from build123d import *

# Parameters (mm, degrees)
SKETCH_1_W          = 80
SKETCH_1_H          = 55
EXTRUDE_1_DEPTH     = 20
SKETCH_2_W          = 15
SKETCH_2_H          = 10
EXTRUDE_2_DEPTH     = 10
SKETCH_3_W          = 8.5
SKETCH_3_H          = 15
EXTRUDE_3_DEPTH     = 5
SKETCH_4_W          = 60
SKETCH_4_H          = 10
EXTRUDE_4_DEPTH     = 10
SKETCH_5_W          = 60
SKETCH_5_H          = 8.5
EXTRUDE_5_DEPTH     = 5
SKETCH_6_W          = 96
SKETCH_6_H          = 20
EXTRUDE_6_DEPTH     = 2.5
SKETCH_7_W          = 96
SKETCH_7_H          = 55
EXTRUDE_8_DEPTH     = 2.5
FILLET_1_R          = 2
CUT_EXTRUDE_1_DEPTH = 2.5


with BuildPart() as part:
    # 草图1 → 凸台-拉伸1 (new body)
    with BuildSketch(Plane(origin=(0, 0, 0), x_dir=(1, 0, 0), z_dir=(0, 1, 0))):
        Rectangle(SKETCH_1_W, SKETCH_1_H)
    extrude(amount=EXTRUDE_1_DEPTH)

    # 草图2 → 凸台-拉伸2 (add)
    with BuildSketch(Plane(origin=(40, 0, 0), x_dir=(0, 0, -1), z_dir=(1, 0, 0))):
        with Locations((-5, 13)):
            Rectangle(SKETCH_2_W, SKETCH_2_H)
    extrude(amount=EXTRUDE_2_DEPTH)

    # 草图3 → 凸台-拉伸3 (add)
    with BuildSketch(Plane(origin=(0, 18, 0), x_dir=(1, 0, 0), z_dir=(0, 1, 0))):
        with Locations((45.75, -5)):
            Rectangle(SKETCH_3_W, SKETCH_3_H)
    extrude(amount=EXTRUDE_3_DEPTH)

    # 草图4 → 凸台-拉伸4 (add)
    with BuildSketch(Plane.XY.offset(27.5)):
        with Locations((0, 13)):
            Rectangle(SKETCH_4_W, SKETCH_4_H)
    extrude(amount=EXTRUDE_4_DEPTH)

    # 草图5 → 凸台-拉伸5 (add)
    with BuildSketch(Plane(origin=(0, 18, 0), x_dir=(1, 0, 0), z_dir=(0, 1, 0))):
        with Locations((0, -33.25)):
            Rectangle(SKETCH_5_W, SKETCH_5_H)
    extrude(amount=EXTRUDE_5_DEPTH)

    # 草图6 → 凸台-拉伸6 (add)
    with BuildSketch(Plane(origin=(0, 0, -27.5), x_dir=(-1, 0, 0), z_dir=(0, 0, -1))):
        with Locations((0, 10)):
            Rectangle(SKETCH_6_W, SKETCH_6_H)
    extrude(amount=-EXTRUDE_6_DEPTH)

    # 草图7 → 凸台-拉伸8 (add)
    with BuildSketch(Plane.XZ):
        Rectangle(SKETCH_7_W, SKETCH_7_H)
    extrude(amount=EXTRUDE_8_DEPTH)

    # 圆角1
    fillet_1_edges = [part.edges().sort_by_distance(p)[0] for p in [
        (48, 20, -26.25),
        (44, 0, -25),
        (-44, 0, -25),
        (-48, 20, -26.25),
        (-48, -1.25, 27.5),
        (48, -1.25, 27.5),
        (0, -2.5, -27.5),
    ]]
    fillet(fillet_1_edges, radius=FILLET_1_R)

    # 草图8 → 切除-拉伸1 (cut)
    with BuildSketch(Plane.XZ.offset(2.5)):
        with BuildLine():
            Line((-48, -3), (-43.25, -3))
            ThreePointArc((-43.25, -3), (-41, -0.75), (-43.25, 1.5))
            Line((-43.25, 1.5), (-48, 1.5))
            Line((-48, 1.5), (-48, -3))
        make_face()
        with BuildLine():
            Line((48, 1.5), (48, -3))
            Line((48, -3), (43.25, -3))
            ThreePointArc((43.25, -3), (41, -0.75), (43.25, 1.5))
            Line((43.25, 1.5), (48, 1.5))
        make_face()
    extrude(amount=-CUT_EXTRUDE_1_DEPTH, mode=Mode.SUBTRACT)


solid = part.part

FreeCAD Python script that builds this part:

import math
import FreeCAD as App
import Part
import Sketcher

V = App.Vector
Q = App.Units.Quantity


def edges_at(feature, points):
    """Names of the edges that pass closest to the given points."""
    edges = feature.Shape.Edges
    near = lambda p: min(range(len(edges)), key=lambda i: edges[i].distToShape(Part.Vertex(*p))[0])
    return sorted({f"Edge{near(p) + 1}" for p in points})


def add_polygon(sketch, points):
    """Adds a closed chain of lines whose ends are joined by coincident constraints."""
    first, n = sketch.GeometryCount, len(points)
    for a, b in zip(points, points[1:] + points[:1]):
        sketch.addGeometry(Part.LineSegment(App.Vector(*a, 0), App.Vector(*b, 0)), False)
    for i in range(n):
        sketch.addConstraint(Sketcher.Constraint("Coincident", first + i, 2, first + (i + 1) % n, 1))

doc = App.newDocument("Part")
body = doc.addObject("PartDesign::Body", "Body")

# Sketch on XZ plane
sketch1 = body.newObject("Sketcher::SketchObject", "Sketch")
sketch1.AttachmentSupport = (doc.getObject("XZ_Plane"), [""])
sketch1.MapMode = "FlatFace"
add_polygon(sketch1, [(-40, -27.5), (-40, 27.5), (40, 27.5), (40, -27.5)])  # lines 0-3
sketch1.addConstraint(Sketcher.Constraint("Vertical", 0))
sketch1.addConstraint(Sketcher.Constraint("Horizontal", 1))
sketch1.addConstraint(Sketcher.Constraint("Vertical", 2))
sketch1.addConstraint(Sketcher.Constraint("Horizontal", 3))
sketch1.addConstraint(Sketcher.Constraint("Symmetric", 0, 2, 2, 2, -1, 1))
sketch1.addConstraint(Sketcher.Constraint("DistanceX", 1, 1, 1, 2, Q("80 mm")))
sketch1.addConstraint(Sketcher.Constraint("DistanceY", 0, 1, 0, 2, Q("55 mm")))
pad1 = body.newObject("PartDesign::Pad", "Pad")
pad1.Profile = sketch1
pad1.Length = 20
pad1.Reversed = True

# Sketch on YZ plane
sketch2 = body.newObject("Sketcher::SketchObject", "Sketch001")
sketch2.AttachmentSupport = (doc.getObject("YZ_Plane"), [""])
sketch2.MapMode = "FlatFace"
sketch2.AttachmentOffset = App.Placement(V(0, 0, 40), App.Rotation())
add_polygon(sketch2, [(18, 12.5), (8, 12.5), (8, -2.5), (18, -2.5)])  # lines 0-3
sketch2.addConstraint(Sketcher.Constraint("Horizontal", 0))
sketch2.addConstraint(Sketcher.Constraint("Vertical", 1))
sketch2.addConstraint(Sketcher.Constraint("Horizontal", 2))
sketch2.addConstraint(Sketcher.Constraint("Vertical", 3))
sketch2.addConstraint(Sketcher.Constraint("DistanceX", 0, 2, 0, 1, Q("10 mm")))
sketch2.addConstraint(Sketcher.Constraint("DistanceY", 1, 2, 1, 1, Q("15 mm")))
sketch2.addConstraint(Sketcher.Constraint("DistanceX", -1, 1, 0, 2, Q("8 mm")))
sketch2.addConstraint(Sketcher.Constraint("DistanceY", -1, 1, 0, 2, Q("12.5 mm")))
pad2 = body.newObject("PartDesign::Pad", "Pad001")
pad2.Profile = sketch2
pad2.Length = 10

# Sketch on XZ plane
sketch3 = body.newObject("Sketcher::SketchObject", "Sketch002")
sketch3.AttachmentSupport = (doc.getObject("XZ_Plane"), [""])
sketch3.MapMode = "FlatFace"
sketch3.AttachmentOffset = App.Placement(V(0, 0, -18), App.Rotation())
add_polygon(sketch3, [(41.5, -2.5), (41.5, 12.5), (50, 12.5), (50, -2.5)])  # lines 0-3
sketch3.addConstraint(Sketcher.Constraint("Vertical", 0))
sketch3.addConstraint(Sketcher.Constraint("Horizontal", 1))
sketch3.addConstraint(Sketcher.Constraint("Vertical", 2))
sketch3.addConstraint(Sketcher.Constraint("Horizontal", 3))
sketch3.addConstraint(Sketcher.Constraint("DistanceY", 0, 1, 0, 2, Q("15 mm")))
sketch3.addConstraint(Sketcher.Constraint("DistanceX", 1, 1, 1, 2, Q("8.5 mm")))
sketch3.addConstraint(Sketcher.Constraint("DistanceX", -1, 1, 1, 2, Q("50 mm")))
sketch3.addConstraint(Sketcher.Constraint("DistanceY", -1, 1, 0, 2, Q("12.5 mm")))
pad3 = body.newObject("PartDesign::Pad", "Pad002")
pad3.Profile = sketch3
pad3.Length = 5
pad3.Reversed = True

# Sketch on XY plane
sketch4 = body.newObject("Sketcher::SketchObject", "Sketch003")
sketch4.AttachmentSupport = (doc.getObject("XY_Plane"), [""])
sketch4.MapMode = "FlatFace"
sketch4.AttachmentOffset = App.Placement(V(0, 0, 27.5), App.Rotation())
add_polygon(sketch4, [(-30, 18), (-30, 8), (30, 8), (30, 18)])  # lines 0-3
sketch4.addConstraint(Sketcher.Constraint("Vertical", 0))
sketch4.addConstraint(Sketcher.Constraint("Horizontal", 1))
sketch4.addConstraint(Sketcher.Constraint("Vertical", 2))
sketch4.addConstraint(Sketcher.Constraint("Horizontal", 3))
sketch4.addConstraint(Sketcher.Constraint("DistanceX", 1, 1, 1, 2, Q("60 mm")))
sketch4.addConstraint(Sketcher.Constraint("DistanceY", 0, 2, 0, 1, Q("10 mm")))
sketch4.addConstraint(Sketcher.Constraint("DistanceX", 0, 2, -1, 1, Q("30 mm")))
sketch4.addConstraint(Sketcher.Constraint("DistanceY", -1, 1, 0, 2, Q("8 mm")))
pad4 = body.newObject("PartDesign::Pad", "Pad003")
pad4.Profile = sketch4
pad4.Length = 10

# Sketch on XZ plane
sketch5 = body.newObject("Sketcher::SketchObject", "Sketch004")
sketch5.AttachmentSupport = (doc.getObject("XZ_Plane"), [""])
sketch5.MapMode = "FlatFace"
sketch5.AttachmentOffset = App.Placement(V(0, 0, -18), App.Rotation())
add_polygon(sketch5, [(-30, 29), (-30, 37.5), (30, 37.5), (30, 29)])  # lines 0-3
sketch5.addConstraint(Sketcher.Constraint("Vertical", 0))
sketch5.addConstraint(Sketcher.Constraint("Horizontal", 1))
sketch5.addConstraint(Sketcher.Constraint("Vertical", 2))
sketch5.addConstraint(Sketcher.Constraint("Horizontal", 3))
sketch5.addConstraint(Sketcher.Constraint("DistanceX", 1, 1, 1, 2, Q("60 mm")))
sketch5.addConstraint(Sketcher.Constraint("DistanceY", 0, 1, 0, 2, Q("8.5 mm")))
sketch5.addConstraint(Sketcher.Constraint("DistanceX", 0, 2, -1, 1, Q("30 mm")))
sketch5.addConstraint(Sketcher.Constraint("DistanceY", -1, 1, 2, 2, Q("29 mm")))
pad5 = body.newObject("PartDesign::Pad", "Pad004")
pad5.Profile = sketch5
pad5.Length = 5
pad5.Reversed = True

# Sketch on XY plane
sketch6 = body.newObject("Sketcher::SketchObject", "Sketch005")
sketch6.AttachmentSupport = (doc.getObject("XY_Plane"), [""])
sketch6.MapMode = "FlatFace"
sketch6.AttachmentOffset = App.Placement(V(0, 0, -27.5), App.Rotation())
add_polygon(sketch6, [(48, 20), (48, 0), (-48, 0), (-48, 20)])  # lines 0-3
sketch6.addConstraint(Sketcher.Constraint("Vertical", 0))
sketch6.addConstraint(Sketcher.Constraint("Horizontal", 1))
sketch6.addConstraint(Sketcher.Constraint("Vertical", 2))
sketch6.addConstraint(Sketcher.Constraint("Horizontal", 3))
sketch6.addConstraint(Sketcher.Constraint("Symmetric", 0, 2, 1, 2, -1, 1))
sketch6.addConstraint(Sketcher.Constraint("DistanceX", 1, 2, 1, 1, Q("96 mm")))
sketch6.addConstraint(Sketcher.Constraint("DistanceY", 0, 2, 0, 1, Q("20 mm")))
pad6 = body.newObject("PartDesign::Pad", "Pad005")
pad6.Profile = sketch6
pad6.Length = 2.5

# Sketch on XZ plane
sketch7 = body.newObject("Sketcher::SketchObject", "Sketch006")
sketch7.AttachmentSupport = (doc.getObject("XZ_Plane"), [""])
sketch7.MapMode = "FlatFace"
add_polygon(sketch7, [(-48, 27.5), (-48, -27.5), (48, -27.5), (48, 27.5)])  # lines 0-3
sketch7.addConstraint(Sketcher.Constraint("Vertical", 0))
sketch7.addConstraint(Sketcher.Constraint("Horizontal", 1))
sketch7.addConstraint(Sketcher.Constraint("Vertical", 2))
sketch7.addConstraint(Sketcher.Constraint("Horizontal", 3))
sketch7.addConstraint(Sketcher.Constraint("Symmetric", 0, 2, 2, 2, -1, 1))
sketch7.addConstraint(Sketcher.Constraint("DistanceX", 1, 1, 1, 2, Q("96 mm")))
sketch7.addConstraint(Sketcher.Constraint("DistanceY", 0, 2, 0, 1, Q("55 mm")))
pad7 = body.newObject("PartDesign::Pad", "Pad006")
pad7.Profile = sketch7
pad7.Length = 2.5
doc.recompute()

fillet = body.newObject("PartDesign::Fillet", "Fillet")
fillet.Base = (pad7, edges_at(pad7, [
    (48, 20, -26.25),
    (44, 0, -25),
    (-44, 0, -25),
    (-48, 20, -26.25),
    (-48, -1.25, 27.5),
    (48, -1.25, 27.5),
    (0, -2.5, -27.5),
]))
fillet.Radius = 2

# Sketch on XZ plane
sketch8 = body.newObject("Sketcher::SketchObject", "Sketch007")
sketch8.AttachmentSupport = (doc.getObject("XZ_Plane"), [""])
sketch8.MapMode = "FlatFace"
sketch8.AttachmentOffset = App.Placement(V(0, 0, 2.5), App.Rotation())
sketch8.addGeometry(Part.LineSegment(V(-48, -3, 0), V(-43.25, -3, 0)), False)
sketch8.addGeometry(Part.ArcOfCircle(Part.Circle(V(-43.25, -0.75, 0), V(0, 0, 1), 2.25), math.radians(-90), math.radians(90)), False)
sketch8.addGeometry(Part.LineSegment(V(-43.25, 1.5, 0), V(-48, 1.5, 0)), False)
sketch8.addGeometry(Part.LineSegment(V(-48, 1.5, 0), V(-48, -3, 0)), False)
sketch8.addGeometry(Part.LineSegment(V(48, -3, 0), V(48, 1.5, 0)), False)
sketch8.addGeometry(Part.LineSegment(V(48, 1.5, 0), V(43.25, 1.5, 0)), False)
sketch8.addGeometry(Part.ArcOfCircle(Part.Circle(V(43.25, -0.75, 0), V(0, 0, 1), 2.25), math.radians(90), math.radians(270)), False)
sketch8.addGeometry(Part.LineSegment(V(43.25, -3, 0), V(48, -3, 0)), False)
sketch8.addConstraint(Sketcher.Constraint("Tangent", 0, 2, 1, 1))
sketch8.addConstraint(Sketcher.Constraint("Tangent", 1, 2, 2, 1))
sketch8.addConstraint(Sketcher.Constraint("Coincident", 2, 2, 3, 1))
sketch8.addConstraint(Sketcher.Constraint("Coincident", 3, 2, 0, 1))
sketch8.addConstraint(Sketcher.Constraint("Coincident", 4, 2, 5, 1))
sketch8.addConstraint(Sketcher.Constraint("Tangent", 5, 2, 6, 1))
sketch8.addConstraint(Sketcher.Constraint("Tangent", 6, 2, 7, 1))
sketch8.addConstraint(Sketcher.Constraint("Coincident", 7, 2, 4, 1))
sketch8.addConstraint(Sketcher.Constraint("Horizontal", 0))
sketch8.addConstraint(Sketcher.Constraint("Horizontal", 2))
sketch8.addConstraint(Sketcher.Constraint("Vertical", 3))
sketch8.addConstraint(Sketcher.Constraint("Vertical", 4))
sketch8.addConstraint(Sketcher.Constraint("Horizontal", 5))
sketch8.addConstraint(Sketcher.Constraint("Horizontal", 7))
sketch8.addConstraint(Sketcher.Constraint("Equal", 1, 6))
sketch8.addConstraint(Sketcher.Constraint("Symmetric", 1, 3, 6, 3, -2))
sketch8.addConstraint(Sketcher.Constraint("Equal", 2, 5))
sketch8.addConstraint(Sketcher.Constraint("Radius", 1, Q("2.25 mm")))
sketch8.addConstraint(Sketcher.Constraint("DistanceY", 0, 2, -1, 1, Q("3 mm")))
sketch8.addConstraint(Sketcher.Constraint("DistanceX", 2, 2, -1, 1, Q("48 mm")))
sketch8.addConstraint(Sketcher.Constraint("DistanceX", 0, 1, 0, 2, Q("4.75 mm")))
pocket1 = body.newObject("PartDesign::Pocket", "Pocket")
pocket1.Profile = sketch8
pocket1.Length = 2.5

doc.recompute()
